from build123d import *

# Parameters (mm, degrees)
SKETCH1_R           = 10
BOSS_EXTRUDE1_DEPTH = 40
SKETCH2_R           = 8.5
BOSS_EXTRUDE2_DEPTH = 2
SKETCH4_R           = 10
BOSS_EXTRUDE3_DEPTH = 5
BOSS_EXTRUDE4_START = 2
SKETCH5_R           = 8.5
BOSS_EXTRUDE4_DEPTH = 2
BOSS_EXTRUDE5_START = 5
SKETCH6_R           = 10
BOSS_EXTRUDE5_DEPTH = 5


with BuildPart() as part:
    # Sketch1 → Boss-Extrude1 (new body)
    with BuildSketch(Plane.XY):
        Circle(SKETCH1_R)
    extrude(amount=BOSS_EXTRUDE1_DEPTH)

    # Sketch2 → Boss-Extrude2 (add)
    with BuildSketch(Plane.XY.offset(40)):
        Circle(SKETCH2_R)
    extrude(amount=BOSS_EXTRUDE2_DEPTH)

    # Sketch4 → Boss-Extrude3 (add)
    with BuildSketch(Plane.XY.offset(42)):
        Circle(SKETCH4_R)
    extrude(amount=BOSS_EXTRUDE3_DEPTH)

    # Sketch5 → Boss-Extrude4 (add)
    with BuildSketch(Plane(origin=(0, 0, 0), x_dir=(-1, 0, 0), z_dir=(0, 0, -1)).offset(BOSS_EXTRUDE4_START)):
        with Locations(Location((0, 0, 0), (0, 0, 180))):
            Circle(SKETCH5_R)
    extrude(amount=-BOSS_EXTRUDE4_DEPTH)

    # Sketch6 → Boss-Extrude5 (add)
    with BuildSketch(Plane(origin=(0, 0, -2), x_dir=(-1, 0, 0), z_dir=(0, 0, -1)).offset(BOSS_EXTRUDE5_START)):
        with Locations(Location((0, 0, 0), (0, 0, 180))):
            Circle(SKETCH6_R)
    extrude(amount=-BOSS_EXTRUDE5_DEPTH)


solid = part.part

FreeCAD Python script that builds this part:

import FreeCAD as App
import Part
import Sketcher
from FreeCAD import Vector
Q = App.Units.Quantity

doc = App.newDocument("Part")
params = doc.addObject("Spreadsheet::Sheet", "Params")
for row, (alias, value) in enumerate([
    ("sketch1_diameter", "20 mm"),
    ("pad1_length", "40 mm"),
    ("sketch2_diameter", "17 mm"),
    ("pad2_length", "2 mm"),
    ("sketch3_diameter", "20 mm"),
    ("pad3_length", "5 mm"),
    ("sketch4_diameter", "17 mm"),
    ("pad4_length", "2 mm"),
    ("sketch5_diameter", "20 mm"),
    ("pad5_length", "5 mm"),
], start=1):
    params.set(f"A{row}", alias)
    params.set(f"B{row}", "=" + value)
    params.setAlias(f"B{row}", alias)

body = doc.addObject("PartDesign::Body", "Body")

sketch1 = body.newObject("Sketcher::SketchObject", "Sketch")
sketch1.AttachmentSupport = (doc.getObject("XY_Plane"), [""])
sketch1.MapMode = "FlatFace"
sketch1.addGeometry(Part.Circle(Vector(0, 0, 0), Vector(0, 0, 1), 10), False)
sketch1.addConstraint([
    Sketcher.Constraint("Coincident", 0, 3, -1, 1),
    Sketcher.Constraint("Diameter", 0, Q("20 mm")),
])
sketch1.setExpression("Constraints[1]", "Params.sketch1_diameter")
pad1 = body.newObject("PartDesign::Pad", "Pad")
pad1.Profile = sketch1
pad1.setExpression("Length", "Params.pad1_length")

sketch2 = body.newObject("Sketcher::SketchObject", "Sketch001")
sketch2.AttachmentSupport = (doc.getObject("XY_Plane"), [""])
sketch2.MapMode = "FlatFace"
sketch2.AttachmentOffset = App.Placement(Vector(0, 0, 40), App.Rotation())
sketch2.addGeometry(Part.Circle(Vector(0, 0, 0), Vector(0, 0, 1), 8), False)
sketch2.addConstraint([
    Sketcher.Constraint("Coincident", 0, 3, -1, 1),
    Sketcher.Constraint("Diameter", 0, Q("17 mm")),
])
sketch2.setExpression("Constraints[1]", "Params.sketch2_diameter")
pad2 = body.newObject("PartDesign::Pad", "Pad001")
pad2.Profile = sketch2
pad2.setExpression("Length", "Params.pad2_length")

sketch3 = body.newObject("Sketcher::SketchObject", "Sketch002")
sketch3.AttachmentSupport = (doc.getObject("XY_Plane"), [""])
sketch3.MapMode = "FlatFace"
sketch3.AttachmentOffset = App.Placement(Vector(0, 0, 42), App.Rotation())
sketch3.addGeometry(Part.Circle(Vector(0, 0, 0), Vector(0, 0, 1), 10), False)
sketch3.addConstraint([
    Sketcher.Constraint("Coincident", 0, 3, -1, 1),
    Sketcher.Constraint("Diameter", 0, Q("20 mm")),
])
sketch3.setExpression("Constraints[1]", "Params.sketch3_diameter")
pad3 = body.newObject("PartDesign::Pad", "Pad002")
pad3.Profile = sketch3
pad3.setExpression("Length", "Params.pad3_length")

sketch4 = body.newObject("Sketcher::SketchObject", "Sketch003")
sketch4.AttachmentSupport = (doc.getObject("XY_Plane"), [""])
sketch4.MapMode = "FlatFace"
sketch4.AttachmentOffset = App.Placement(Vector(0, 0, -2), App.Rotation())
sketch4.addGeometry(Part.Circle(Vector(0, 0, 0), Vector(0, 0, 1), 8), False)
sketch4.addConstraint([
    Sketcher.Constraint("Coincident", 0, 3, -1, 1),
    Sketcher.Constraint("Diameter", 0, Q("17 mm")),
])
sketch4.setExpression("Constraints[1]", "Params.sketch4_diameter")
pad4 = body.newObject("PartDesign::Pad", "Pad003")
pad4.Profile = sketch4
pad4.setExpression("Length", "Params.pad4_length")

sketch5 = body.newObject("Sketcher::SketchObject", "Sketch004")
sketch5.AttachmentSupport = (doc.getObject("XY_Plane"), [""])
sketch5.MapMode = "FlatFace"
sketch5.AttachmentOffset = App.Placement(Vector(0, 0, -7), App.Rotation())
sketch5.addGeometry(Part.Circle(Vector(0, 0, 0), Vector(0, 0, 1), 10), False)
sketch5.addConstraint([
    Sketcher.Constraint("Coincident", 0, 3, -1, 1),
    Sketcher.Constraint("Diameter", 0, Q("20 mm")),
])
sketch5.setExpression("Constraints[1]", "Params.sketch5_diameter")
pad5 = body.newObject("PartDesign::Pad", "Pad004")
pad5.Profile = sketch5
pad5.setExpression("Length", "Params.pad5_length")

doc.recompute()
